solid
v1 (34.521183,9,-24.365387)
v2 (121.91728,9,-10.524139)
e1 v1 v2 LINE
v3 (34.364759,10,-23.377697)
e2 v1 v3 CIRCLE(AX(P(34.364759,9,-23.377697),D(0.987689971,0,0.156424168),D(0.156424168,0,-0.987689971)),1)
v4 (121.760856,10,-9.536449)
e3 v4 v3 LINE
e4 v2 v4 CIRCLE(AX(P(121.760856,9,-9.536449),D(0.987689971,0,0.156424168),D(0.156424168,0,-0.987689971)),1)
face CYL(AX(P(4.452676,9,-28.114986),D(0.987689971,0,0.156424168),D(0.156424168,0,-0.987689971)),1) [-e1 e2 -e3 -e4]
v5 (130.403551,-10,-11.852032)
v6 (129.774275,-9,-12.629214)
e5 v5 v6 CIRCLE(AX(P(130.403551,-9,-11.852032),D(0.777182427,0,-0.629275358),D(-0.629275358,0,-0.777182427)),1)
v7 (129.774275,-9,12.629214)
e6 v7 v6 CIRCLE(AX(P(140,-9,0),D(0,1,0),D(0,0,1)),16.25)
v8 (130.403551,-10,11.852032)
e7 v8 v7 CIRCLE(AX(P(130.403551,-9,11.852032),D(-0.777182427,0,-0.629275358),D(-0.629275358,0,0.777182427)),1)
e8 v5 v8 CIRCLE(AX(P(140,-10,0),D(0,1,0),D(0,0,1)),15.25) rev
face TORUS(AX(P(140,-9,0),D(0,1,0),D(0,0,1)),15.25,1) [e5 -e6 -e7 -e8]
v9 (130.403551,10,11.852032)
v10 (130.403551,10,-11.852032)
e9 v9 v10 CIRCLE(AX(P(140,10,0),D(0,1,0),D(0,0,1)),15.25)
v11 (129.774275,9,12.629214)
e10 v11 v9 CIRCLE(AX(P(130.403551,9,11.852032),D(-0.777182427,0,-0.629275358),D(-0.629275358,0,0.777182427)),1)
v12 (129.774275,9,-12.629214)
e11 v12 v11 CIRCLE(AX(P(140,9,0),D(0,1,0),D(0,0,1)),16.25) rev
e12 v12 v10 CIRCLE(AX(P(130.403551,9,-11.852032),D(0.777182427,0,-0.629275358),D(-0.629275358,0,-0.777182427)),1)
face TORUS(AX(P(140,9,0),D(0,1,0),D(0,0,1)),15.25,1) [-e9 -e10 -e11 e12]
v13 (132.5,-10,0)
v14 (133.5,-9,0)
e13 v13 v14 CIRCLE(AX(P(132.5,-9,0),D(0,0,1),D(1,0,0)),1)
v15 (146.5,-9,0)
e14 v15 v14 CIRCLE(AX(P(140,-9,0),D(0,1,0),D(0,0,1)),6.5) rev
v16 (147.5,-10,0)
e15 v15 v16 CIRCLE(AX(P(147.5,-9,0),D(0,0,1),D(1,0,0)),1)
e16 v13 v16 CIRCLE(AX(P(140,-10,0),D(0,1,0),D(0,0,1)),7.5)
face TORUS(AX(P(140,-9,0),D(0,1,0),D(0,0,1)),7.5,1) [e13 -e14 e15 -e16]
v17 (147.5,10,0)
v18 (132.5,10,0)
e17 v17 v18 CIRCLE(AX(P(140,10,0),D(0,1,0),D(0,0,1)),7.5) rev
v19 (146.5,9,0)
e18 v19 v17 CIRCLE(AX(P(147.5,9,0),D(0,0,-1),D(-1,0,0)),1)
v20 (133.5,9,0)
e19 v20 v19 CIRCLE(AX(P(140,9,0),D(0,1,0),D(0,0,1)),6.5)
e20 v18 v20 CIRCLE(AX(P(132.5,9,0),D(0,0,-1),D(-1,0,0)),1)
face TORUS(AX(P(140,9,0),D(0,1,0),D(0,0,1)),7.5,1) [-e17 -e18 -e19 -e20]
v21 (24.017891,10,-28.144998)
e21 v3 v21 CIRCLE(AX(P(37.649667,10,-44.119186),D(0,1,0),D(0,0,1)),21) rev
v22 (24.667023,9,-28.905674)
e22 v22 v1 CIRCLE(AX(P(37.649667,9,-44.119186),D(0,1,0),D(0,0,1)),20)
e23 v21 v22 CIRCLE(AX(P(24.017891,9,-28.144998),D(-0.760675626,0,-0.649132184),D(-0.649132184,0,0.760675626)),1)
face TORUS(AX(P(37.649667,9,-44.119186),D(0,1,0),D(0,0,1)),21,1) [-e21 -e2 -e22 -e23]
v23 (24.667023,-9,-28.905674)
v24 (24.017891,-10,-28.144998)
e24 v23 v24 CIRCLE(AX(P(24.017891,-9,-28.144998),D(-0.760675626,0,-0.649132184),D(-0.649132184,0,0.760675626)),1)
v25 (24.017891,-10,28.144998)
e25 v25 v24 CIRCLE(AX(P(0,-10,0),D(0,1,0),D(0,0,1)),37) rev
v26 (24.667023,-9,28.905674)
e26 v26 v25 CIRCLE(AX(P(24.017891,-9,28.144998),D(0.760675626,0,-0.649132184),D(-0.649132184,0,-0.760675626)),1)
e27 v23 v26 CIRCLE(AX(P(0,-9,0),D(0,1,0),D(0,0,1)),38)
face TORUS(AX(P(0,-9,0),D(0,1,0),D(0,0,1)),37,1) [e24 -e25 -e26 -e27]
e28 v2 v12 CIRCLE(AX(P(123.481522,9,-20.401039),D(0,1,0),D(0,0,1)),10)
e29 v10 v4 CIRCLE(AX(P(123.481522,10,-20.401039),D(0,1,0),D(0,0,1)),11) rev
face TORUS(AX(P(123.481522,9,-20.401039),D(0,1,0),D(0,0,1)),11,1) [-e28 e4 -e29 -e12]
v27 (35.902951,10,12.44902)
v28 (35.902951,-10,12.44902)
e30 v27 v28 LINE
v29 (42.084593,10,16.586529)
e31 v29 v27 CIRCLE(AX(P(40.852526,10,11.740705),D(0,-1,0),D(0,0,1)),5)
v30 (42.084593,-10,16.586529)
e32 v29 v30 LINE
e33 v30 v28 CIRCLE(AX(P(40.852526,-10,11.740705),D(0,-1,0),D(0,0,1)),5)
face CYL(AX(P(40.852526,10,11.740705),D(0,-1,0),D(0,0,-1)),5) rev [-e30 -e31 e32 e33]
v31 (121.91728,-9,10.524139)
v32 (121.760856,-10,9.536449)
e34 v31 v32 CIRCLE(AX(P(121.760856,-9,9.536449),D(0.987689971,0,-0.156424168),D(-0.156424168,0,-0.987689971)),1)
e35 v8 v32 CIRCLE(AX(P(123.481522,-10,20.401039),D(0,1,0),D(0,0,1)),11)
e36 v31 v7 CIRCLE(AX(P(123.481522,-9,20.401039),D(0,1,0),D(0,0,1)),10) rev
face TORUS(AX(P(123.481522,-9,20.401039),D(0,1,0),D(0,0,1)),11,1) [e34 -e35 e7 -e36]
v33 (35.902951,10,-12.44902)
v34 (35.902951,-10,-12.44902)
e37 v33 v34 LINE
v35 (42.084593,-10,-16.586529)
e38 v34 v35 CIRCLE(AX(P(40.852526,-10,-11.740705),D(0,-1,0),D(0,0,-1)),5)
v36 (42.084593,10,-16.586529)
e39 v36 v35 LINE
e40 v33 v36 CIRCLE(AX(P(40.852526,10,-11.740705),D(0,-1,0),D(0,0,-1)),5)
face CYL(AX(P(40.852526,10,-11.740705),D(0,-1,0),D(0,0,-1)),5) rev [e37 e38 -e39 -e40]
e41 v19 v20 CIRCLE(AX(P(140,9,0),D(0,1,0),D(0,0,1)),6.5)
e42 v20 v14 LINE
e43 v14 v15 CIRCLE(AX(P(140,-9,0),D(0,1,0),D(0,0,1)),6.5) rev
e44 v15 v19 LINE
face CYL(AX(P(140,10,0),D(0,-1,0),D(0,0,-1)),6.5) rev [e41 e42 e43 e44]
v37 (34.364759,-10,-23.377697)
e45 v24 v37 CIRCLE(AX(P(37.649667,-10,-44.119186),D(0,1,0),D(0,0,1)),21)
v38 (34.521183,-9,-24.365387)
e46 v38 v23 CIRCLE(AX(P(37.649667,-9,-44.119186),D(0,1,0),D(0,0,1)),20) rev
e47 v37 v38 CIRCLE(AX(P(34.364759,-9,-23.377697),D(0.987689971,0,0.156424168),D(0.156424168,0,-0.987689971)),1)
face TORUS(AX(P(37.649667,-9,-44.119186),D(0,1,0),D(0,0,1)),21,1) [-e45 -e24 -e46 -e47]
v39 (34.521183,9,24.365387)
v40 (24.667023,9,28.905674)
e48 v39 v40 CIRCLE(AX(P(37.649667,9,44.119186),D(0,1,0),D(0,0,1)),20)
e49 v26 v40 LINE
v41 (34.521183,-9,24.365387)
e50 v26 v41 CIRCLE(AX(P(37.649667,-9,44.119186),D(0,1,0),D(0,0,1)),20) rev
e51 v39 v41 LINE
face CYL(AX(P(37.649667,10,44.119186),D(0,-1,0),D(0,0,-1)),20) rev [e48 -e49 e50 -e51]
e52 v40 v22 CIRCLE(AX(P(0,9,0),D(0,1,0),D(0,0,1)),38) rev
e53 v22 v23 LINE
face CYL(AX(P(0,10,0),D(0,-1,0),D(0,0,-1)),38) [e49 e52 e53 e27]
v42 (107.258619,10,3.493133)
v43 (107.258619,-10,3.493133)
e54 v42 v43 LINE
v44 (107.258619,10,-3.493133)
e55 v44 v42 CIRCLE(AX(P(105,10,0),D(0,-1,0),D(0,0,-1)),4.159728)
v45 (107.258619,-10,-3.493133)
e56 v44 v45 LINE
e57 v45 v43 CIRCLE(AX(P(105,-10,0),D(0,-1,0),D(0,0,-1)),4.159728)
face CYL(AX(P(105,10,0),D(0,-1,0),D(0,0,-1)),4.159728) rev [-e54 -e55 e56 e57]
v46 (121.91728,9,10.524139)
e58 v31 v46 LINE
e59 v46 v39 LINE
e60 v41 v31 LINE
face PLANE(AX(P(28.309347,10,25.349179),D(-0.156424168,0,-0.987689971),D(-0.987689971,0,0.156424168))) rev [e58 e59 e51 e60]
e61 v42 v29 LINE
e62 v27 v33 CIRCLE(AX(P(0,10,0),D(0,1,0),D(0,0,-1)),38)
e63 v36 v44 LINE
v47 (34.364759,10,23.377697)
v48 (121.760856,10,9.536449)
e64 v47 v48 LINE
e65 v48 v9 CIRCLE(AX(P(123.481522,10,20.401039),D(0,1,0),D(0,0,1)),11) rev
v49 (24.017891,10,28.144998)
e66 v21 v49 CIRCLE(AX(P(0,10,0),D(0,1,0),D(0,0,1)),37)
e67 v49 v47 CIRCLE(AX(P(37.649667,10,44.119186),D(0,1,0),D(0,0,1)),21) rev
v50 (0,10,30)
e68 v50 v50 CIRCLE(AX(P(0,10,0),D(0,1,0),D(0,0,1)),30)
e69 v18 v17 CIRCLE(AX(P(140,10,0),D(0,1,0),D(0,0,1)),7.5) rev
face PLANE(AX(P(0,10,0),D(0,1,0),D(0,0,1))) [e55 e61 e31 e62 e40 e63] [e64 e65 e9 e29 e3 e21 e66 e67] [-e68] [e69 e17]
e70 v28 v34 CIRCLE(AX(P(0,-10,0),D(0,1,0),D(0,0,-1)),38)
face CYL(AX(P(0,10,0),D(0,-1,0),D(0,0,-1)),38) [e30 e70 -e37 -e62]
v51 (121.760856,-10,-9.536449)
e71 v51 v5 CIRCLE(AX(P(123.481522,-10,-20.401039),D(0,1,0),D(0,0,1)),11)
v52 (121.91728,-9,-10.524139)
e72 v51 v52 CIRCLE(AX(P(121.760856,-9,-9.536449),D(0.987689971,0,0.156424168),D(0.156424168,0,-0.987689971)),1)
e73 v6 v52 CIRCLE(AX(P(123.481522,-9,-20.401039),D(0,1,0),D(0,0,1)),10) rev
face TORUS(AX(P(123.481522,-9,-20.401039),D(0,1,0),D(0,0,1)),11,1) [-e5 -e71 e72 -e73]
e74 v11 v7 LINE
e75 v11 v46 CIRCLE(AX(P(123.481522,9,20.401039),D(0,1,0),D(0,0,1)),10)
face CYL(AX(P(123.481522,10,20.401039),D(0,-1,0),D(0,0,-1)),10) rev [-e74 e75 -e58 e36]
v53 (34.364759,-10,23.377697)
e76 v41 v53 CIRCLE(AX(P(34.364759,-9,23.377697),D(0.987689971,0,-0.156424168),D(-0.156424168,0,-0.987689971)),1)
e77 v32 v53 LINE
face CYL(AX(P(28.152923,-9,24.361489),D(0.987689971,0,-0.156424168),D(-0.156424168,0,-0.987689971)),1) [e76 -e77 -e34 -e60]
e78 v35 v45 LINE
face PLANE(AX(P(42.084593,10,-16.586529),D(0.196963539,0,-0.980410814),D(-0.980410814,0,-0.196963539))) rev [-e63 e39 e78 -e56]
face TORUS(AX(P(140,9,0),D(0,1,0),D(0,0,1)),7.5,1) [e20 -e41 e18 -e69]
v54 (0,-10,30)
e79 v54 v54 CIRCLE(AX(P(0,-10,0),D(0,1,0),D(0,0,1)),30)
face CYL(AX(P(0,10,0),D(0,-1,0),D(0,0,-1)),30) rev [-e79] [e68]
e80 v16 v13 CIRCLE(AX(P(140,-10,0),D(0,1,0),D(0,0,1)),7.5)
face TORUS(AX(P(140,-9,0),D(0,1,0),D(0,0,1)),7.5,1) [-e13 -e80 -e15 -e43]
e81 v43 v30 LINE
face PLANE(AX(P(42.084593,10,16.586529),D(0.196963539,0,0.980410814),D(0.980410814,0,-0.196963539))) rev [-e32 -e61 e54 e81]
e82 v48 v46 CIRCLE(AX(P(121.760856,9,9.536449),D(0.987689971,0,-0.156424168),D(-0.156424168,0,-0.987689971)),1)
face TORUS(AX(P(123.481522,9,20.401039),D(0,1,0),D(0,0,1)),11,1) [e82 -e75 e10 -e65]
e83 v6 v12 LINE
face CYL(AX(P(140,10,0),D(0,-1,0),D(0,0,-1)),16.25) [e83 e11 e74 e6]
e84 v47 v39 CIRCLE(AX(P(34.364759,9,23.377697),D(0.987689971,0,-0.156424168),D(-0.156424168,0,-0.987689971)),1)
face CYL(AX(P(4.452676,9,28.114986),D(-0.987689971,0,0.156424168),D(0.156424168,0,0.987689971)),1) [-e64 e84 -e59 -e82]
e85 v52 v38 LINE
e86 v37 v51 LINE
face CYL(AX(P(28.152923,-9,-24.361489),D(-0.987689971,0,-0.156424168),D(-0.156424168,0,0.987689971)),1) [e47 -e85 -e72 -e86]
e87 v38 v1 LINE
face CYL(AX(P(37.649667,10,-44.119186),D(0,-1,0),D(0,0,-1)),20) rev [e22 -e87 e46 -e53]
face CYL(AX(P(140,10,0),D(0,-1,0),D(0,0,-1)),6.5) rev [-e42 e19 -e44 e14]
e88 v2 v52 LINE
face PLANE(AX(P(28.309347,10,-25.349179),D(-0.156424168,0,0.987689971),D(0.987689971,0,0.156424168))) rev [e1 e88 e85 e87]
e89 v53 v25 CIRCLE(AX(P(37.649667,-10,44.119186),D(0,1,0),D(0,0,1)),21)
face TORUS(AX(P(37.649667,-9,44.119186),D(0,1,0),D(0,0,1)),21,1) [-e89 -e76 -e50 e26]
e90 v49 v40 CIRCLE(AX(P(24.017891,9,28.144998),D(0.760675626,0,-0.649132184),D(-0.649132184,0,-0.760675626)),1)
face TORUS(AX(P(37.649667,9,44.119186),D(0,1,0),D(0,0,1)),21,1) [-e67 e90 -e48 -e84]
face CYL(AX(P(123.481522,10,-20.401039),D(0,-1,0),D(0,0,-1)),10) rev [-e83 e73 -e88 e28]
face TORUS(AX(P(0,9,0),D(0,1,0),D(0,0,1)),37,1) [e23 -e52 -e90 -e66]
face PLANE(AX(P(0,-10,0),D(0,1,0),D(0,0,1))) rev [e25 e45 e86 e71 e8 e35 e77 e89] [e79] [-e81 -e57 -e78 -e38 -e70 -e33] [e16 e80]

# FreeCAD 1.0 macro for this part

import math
import FreeCAD as App
import Part
import Sketcher
from FreeCAD import Vector


def edges_at(feature, points):
    """Names of the edges that pass closest to the given points."""
    edges = feature.Shape.Edges
    near = lambda p: min(range(len(edges)), key=lambda i: edges[i].distToShape(Part.Vertex(*p))[0])
    return sorted({f"Edge{near(p) + 1}" for p in points})

doc = App.newDocument("Part")
body = doc.addObject("PartDesign::Body", "Body")

# Sketch on XZ plane
sketch1 = body.newObject("Sketcher::SketchObject", "Sketch")
sketch1.AttachmentSupport = (doc.getObject("XZ_Plane"), [""])
sketch1.MapMode = "FlatFace"
sketch1.addGeometry(Part.LineSegment(Vector(28, 25, 0), Vector(127, 10, 0)), False)
sketch1.addGeometry(Part.ArcOfCircle(Part.Circle(Vector(140, 0, 0), Vector(0, 0, 1), 16), math.radians(-143), math.radians(143)), False)
sketch1.addGeometry(Part.LineSegment(Vector(127, -10, 0), Vector(28, -25, 0)), False)
sketch1.addGeometry(Part.ArcOfCircle(Part.Circle(Vector(0, 0, 0), Vector(0, 0, 1), 38), math.radians(42), math.radians(318)), False)
sketch1.addGeometry(Part.Circle(Vector(0, 0, 0), Vector(0, 0, 1), 30), False)
sketch1.addGeometry(Part.Circle(Vector(140, 0, 0), Vector(0, 0, 1), 6), False)
sketch1.addConstraint(Sketcher.Constraint("Coincident", 0, 2, 1, 2))
sketch1.addConstraint(Sketcher.Constraint("Coincident", 1, 1, 2, 1))
sketch1.addConstraint(Sketcher.Constraint("Coincident", 2, 2, 3, 2))
sketch1.addConstraint(Sketcher.Constraint("Coincident", 3, 1, 0, 1))
sketch1.addConstraint(Sketcher.Constraint("Coincident", 3, 3, -1, 1))
sketch1.addConstraint(Sketcher.Constraint("Coincident", 4, 3, -1, 1))
sketch1.addConstraint(Sketcher.Constraint("Coincident", 5, 3, 1, 3))
sketch1.addConstraint(Sketcher.Constraint("Symmetric", 0, 2, 1, 1, -1))
sketch1.addConstraint(Sketcher.Constraint("Vertical", 2, 2, 3, 1))
sketch1.addConstraint(Sketcher.Constraint("Diameter", 4, 60.0))
sketch1.addConstraint(Sketcher.Constraint("Diameter", 5, 13.0))
sketch1.addConstraint(Sketcher.Constraint("Radius", 3, 38.0))
sketch1.addConstraint(Sketcher.Constraint("Radius", 1, 16.25))
sketch1.addConstraint(Sketcher.Constraint("DistanceX", -1, 1, 1, 3, 140.0))
sketch1.addConstraint(Sketcher.Constraint("DistanceY", 2, 2, -1, 1, 25.349179))
sketch1.addConstraint(Sketcher.Constraint("Distance", 0, 99.899795))
pad1 = body.newObject("PartDesign::Pad", "Pad")
pad1.Profile = sketch1
pad1.Length = 20
pad1.Midplane = True
doc.recompute()

fillet = body.newObject("PartDesign::Fillet", "Fillet")
fillet.Base = (pad1, edges_at(pad1, [(28.309, 0, -25.349), (28.309, 0, 25.349)]))
fillet.Radius = 20
doc.recompute()

fillet2 = body.newObject("PartDesign::Fillet", "Fillet001")
fillet2.Base = (fillet, edges_at(fillet, [(126.979, 0, -9.722), (126.979, 0, 9.722)]))
fillet2.Radius = 10

# Sketch on XZ plane
sketch2 = body.newObject("Sketcher::SketchObject", "Sketch001")
sketch2.AttachmentSupport = (doc.getObject("XZ_Plane"), [""])
sketch2.MapMode = "FlatFace"
sketch2.AttachmentOffset = App.Placement(Vector(0, 0, 10), App.Rotation())
sketch2.addGeometry(Part.LineSegment(Vector(42.1, -16.6, 0), Vector(107.3, -3.5, 0)), False)
sketch2.addGeometry(Part.ArcOfCircle(Part.Circle(Vector(105, 0, 0), Vector(0, 0, 1), 4.2), math.radians(-57), math.radians(57)), False)
sketch2.addGeometry(Part.LineSegment(Vector(107.3, 3.5, 0), Vector(42.1, 16.6, 0)), False)
sketch2.addGeometry(Part.ArcOfCircle(Part.Circle(Vector(40.9, 11.7, 0), Vector(0, 0, 1), 5), math.radians(76), math.radians(172)), False)
sketch2.addGeometry(Part.ArcOfCircle(Part.Circle(Vector(0, 0, 0), Vector(0, 0, 1), 38), math.radians(-19), math.radians(19)), False)
sketch2.addGeometry(Part.ArcOfCircle(Part.Circle(Vector(40.9, -11.7, 0), Vector(0, 0, 1), 5), math.radians(-172), math.radians(-76)), False)
sketch2.addConstraint(Sketcher.Constraint("Coincident", 0, 2, 1, 1))
sketch2.addConstraint(Sketcher.Constraint("Coincident", 1, 2, 2, 1))
sketch2.addConstraint(Sketcher.Constraint("Coincident", 2, 2, 3, 1))
sketch2.addConstraint(Sketcher.Constraint("Coincident", 3, 2, 4, 2))
sketch2.addConstraint(Sketcher.Constraint("Coincident", 4, 1, 5, 1))
sketch2.addConstraint(Sketcher.Constraint("Coincident", 5, 2, 0, 1))
sketch2.addConstraint(Sketcher.Constraint("Coincident", 4, 3, -1, 1))
sketch2.addConstraint(Sketcher.Constraint("Equal", 3, 5))
sketch2.addConstraint(Sketcher.Constraint("Symmetric", 3, 3, 5, 3, -1))
sketch2.addConstraint(Sketcher.Constraint("Symmetric", 0, 2, 1, 2, -1))
sketch2.addConstraint(Sketcher.Constraint("Vertical", 2, 2, 5, 2))
sketch2.addConstraint(Sketcher.Constraint("Radius", 3, 5.0))
sketch2.addConstraint(Sketcher.Constraint("Radius", 4, 38.0))
sketch2.addConstraint(Sketcher.Constraint("DistanceX", -1, 1, 1, 3, 105.0))
sketch2.addConstraint(Sketcher.Constraint("Radius", 1, 4.159728))
sketch2.addConstraint(Sketcher.Constraint("Distance", 0, 66.476241))
sketch2.addConstraint(Sketcher.Constraint("DistanceX", -1, 1, 0, 2, 107.258619))
sketch2.addConstraint(Sketcher.Constraint("DistanceY", -1, 1, 2, 2, 16.586529))
sketch2.addConstraint(Sketcher.Constraint("DistanceX", -1, 1, 3, 2, 35.902951))
pocket1 = body.newObject("PartDesign::Pocket", "Pocket")
pocket1.Profile = sketch2
pocket1.Type = "ThroughAll"
doc.recompute()

fillet3 = body.newObject("PartDesign::Fillet", "Fillet002")
fillet3.Base = (pocket1, edges_at(pocket1, [
    (140, -10, -6.5),
    (140, 10, -6.5),
    (-38, -10, 0),
    (-38, 10, 0),
    (78.219, -10, 17.445),
    (78.219, 10, 17.445),
    (29.28, -10, -25.955),
    (29.28, 10, -25.955),
    (29.28, -10, 25.955),
    (29.28, 10, 25.955),
    (78.219, -10, -17.445),
    (78.219, 10, -17.445),
    (156.25, -10, 0),
    (156.25, 10, 0),
    (126.069, -10, -10.742),
    (126.069, 10, -10.742),
    (126.069, -10, 10.742),
    (126.069, 10, 10.742),
    (140, -10, -6.5),
    (140, 10, -6.5),
]))
fillet3.Radius = 1

doc.recompute()
